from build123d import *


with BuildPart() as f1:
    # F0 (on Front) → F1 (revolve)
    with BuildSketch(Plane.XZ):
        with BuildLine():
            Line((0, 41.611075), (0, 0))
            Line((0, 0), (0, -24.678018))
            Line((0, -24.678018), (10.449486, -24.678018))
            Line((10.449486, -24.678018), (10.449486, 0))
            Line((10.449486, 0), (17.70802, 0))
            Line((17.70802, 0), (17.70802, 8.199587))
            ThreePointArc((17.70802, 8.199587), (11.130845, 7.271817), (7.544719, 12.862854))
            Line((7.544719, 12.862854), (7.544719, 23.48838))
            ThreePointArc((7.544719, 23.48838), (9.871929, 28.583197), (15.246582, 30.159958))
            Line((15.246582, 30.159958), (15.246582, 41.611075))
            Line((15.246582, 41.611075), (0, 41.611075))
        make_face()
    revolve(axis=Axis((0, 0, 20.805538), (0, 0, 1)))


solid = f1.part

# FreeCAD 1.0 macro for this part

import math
import FreeCAD as App
import Part
import Sketcher

V = App.Vector

doc = App.newDocument("Part")
body = doc.addObject("PartDesign::Body", "Body")

# Sketch on XZ plane
sketch1 = doc.addObject("Sketcher::SketchObject", "Sketch")
body.addObject(sketch1)
sketch1.AttachmentSupport = (doc.XZ_Plane, [""])
sketch1.MapMode = "FlatFace"
sketch1.addGeometry([
    Part.LineSegment(V(0, 41.611075, 0), V(0, -24.678018, 0)),  # 0
    Part.LineSegment(V(0, -24.678018, 0), V(10.449486, -24.678018, 0)),  # 1
    Part.LineSegment(V(10.449486, -24.678018, 0), V(10.449486, 0, 0)),  # 2
    Part.LineSegment(V(10.449486, 0, 0), V(17.70802, 0, 0)),  # 3
    Part.LineSegment(V(17.70802, 0, 0), V(17.70802, 8.199587, 0)),  # 4
    Part.ArcOfCircle(Part.Circle(V(13.696202, 12.862853, 0), V(0, 0, 1), 6.151483), math.radians(179.99999), math.radians(310.705487)),  # 5
    Part.LineSegment(V(7.544719, 12.862854, 0), V(7.544719, 23.48838, 0)),  # 6
    Part.ArcOfCircle(Part.Circle(V(14.285208, 23.48838, 0), V(0, 0, 1), 6.740489), math.radians(81.800128), math.radians(179.999999)),  # 7
    Part.LineSegment(V(15.246582, 30.159958, 0), V(15.246582, 41.611075, 0)),  # 8
    Part.LineSegment(V(15.246582, 41.611075, 0), V(0, 41.611075, 0)),  # 9
], False)
sketch1.addConstraint([
    Sketcher.Constraint("Coincident", 0, 2, 1, 1),
    Sketcher.Constraint("Coincident", 1, 2, 2, 1),
    Sketcher.Constraint("Coincident", 2, 2, 3, 1),
    Sketcher.Constraint("Coincident", 3, 2, 4, 1),
    Sketcher.Constraint("Coincident", 4, 2, 5, 2),
    Sketcher.Constraint("Tangent", 5, 1, 6, 1),
    Sketcher.Constraint("Tangent", 6, 2, 7, 2),
    Sketcher.Constraint("Coincident", 7, 1, 8, 1),
    Sketcher.Constraint("Coincident", 8, 2, 9, 1),
    Sketcher.Constraint("Coincident", 9, 2, 0, 1),
    Sketcher.Constraint("Vertical", 0),
    Sketcher.Constraint("Horizontal", 1),
    Sketcher.Constraint("Vertical", 2),
    Sketcher.Constraint("Horizontal", 3),
    Sketcher.Constraint("Vertical", 4),
    Sketcher.Constraint("Vertical", 6),
    Sketcher.Constraint("Vertical", 8),
    Sketcher.Constraint("Horizontal", 9),
    Sketcher.Constraint("PointOnObject", 0, 2, -2),
    Sketcher.Constraint("PointOnObject", 2, 2, -1),
    Sketcher.Constraint("Radius", 7, 6.740489),
    Sketcher.Constraint("Radius", 5, 6.151483),
    Sketcher.Constraint("DistanceY", 2, 1, 2, 2, 24.678018),
    Sketcher.Constraint("DistanceX", -1, 1, 5, 3, 13.696202),
    Sketcher.Constraint("DistanceX", 5, 1, 4, 2, 10.163301),
    Sketcher.Constraint("DistanceX", 1, 1, 1, 2, 10.449486),
    Sketcher.Constraint("DistanceX", 9, 2, 9, 1, 15.246582),
    Sketcher.Constraint("DistanceY", 0, 2, 0, 1, 66.289093),
    Sketcher.Constraint("DistanceY", 4, 1, 4, 2, 8.199587),
    Sketcher.Constraint("DistanceY", 6, 1, 6, 2, 10.625526),
])
revolution = doc.addObject("PartDesign::Revolution", "Revolution")
body.addObject(revolution)
revolution.Profile = sketch1
revolution.ReferenceAxis = (sketch1, ["V_Axis"])
revolution.Angle = 360

doc.recompute()
